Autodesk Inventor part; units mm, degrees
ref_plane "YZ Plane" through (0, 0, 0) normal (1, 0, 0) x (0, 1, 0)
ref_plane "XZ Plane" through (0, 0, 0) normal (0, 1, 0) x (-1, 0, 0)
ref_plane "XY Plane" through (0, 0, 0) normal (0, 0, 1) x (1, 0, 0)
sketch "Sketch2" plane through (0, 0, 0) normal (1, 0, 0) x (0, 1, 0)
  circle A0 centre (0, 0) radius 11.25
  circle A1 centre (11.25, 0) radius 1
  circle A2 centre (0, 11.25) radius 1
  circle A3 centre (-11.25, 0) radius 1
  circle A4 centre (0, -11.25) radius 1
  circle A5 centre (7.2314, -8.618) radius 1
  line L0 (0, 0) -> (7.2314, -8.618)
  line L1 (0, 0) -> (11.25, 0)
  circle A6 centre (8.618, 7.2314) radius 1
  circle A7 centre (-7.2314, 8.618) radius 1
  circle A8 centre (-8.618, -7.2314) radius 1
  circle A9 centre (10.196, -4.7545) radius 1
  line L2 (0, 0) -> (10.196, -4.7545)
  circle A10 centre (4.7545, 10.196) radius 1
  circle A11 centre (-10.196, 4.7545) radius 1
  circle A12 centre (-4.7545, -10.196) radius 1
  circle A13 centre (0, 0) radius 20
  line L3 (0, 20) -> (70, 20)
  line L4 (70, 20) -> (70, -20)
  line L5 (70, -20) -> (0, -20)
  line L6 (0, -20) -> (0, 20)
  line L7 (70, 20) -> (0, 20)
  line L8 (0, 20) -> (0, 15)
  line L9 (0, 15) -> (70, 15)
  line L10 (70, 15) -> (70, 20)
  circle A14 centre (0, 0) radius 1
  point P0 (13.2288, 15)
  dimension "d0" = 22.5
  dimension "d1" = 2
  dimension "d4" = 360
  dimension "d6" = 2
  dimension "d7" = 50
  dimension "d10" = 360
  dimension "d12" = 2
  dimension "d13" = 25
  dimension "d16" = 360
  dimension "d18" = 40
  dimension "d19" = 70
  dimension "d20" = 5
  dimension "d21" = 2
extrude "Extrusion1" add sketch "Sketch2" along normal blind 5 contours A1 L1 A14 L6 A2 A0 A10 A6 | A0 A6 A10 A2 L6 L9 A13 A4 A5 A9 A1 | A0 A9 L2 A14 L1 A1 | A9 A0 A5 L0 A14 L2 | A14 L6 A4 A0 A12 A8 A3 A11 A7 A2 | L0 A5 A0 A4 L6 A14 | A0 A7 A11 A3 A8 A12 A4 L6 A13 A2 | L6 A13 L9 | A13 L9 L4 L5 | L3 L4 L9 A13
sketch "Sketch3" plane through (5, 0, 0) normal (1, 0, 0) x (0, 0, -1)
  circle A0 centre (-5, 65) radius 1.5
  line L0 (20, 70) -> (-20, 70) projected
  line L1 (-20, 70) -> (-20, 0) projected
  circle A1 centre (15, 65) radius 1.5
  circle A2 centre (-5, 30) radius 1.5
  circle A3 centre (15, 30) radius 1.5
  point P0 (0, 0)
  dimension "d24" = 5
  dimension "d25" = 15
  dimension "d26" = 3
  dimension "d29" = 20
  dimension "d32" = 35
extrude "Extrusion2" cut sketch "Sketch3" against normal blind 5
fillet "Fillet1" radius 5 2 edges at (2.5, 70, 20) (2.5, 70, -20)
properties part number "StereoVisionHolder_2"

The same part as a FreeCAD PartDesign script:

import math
import FreeCAD as App
import Part
import Sketcher


def edges_at(feature, points):
    """Names of the edges that pass closest to the given points."""
    edges = feature.Shape.Edges
    near = lambda p: min(range(len(edges)), key=lambda i: edges[i].distToShape(Part.Vertex(*p))[0])
    return sorted({f"Edge{near(p) + 1}" for p in points})

doc = App.newDocument("Part")
body = doc.addObject("PartDesign::Body", "Body")

# Sketch on YZ plane
sketch1 = body.newObject("Sketcher::SketchObject", "Sketch")
sketch1.AttachmentSupport = (doc.getObject("YZ_Plane"), [""])
sketch1.MapMode = "FlatFace"
sketch1.addGeometry(Part.ArcOfCircle(Part.Circle(App.Vector(0, 0, 0), App.Vector(0, 0, 1), 20), math.radians(90), math.radians(270)), False)
sketch1.addGeometry(Part.LineSegment(App.Vector(0, -20, 0), App.Vector(70, -20, 0)), False)
sketch1.addGeometry(Part.LineSegment(App.Vector(70, -20, 0), App.Vector(70, 20, 0)), False)
sketch1.addGeometry(Part.LineSegment(App.Vector(70, 20, 0), App.Vector(0, 20, 0)), False)
sketch1.addGeometry(Part.Circle(App.Vector(11.25, 0, 0), App.Vector(0, 0, 1), 1), False)
sketch1.addGeometry(Part.Circle(App.Vector(0, 0, 0), App.Vector(0, 0, 1), 1), False)
sketch1.addGeometry(Part.Circle(App.Vector(0, 11.25, 0), App.Vector(0, 0, 1), 1), False)
sketch1.addGeometry(Part.Circle(App.Vector(4.7545, 10.196, 0), App.Vector(0, 0, 1), 1), False)
sketch1.addGeometry(Part.Circle(App.Vector(8.618, 7.2314, 0), App.Vector(0, 0, 1), 1), False)
sketch1.addGeometry(Part.Circle(App.Vector(10.196, -4.7545, 0), App.Vector(0, 0, 1), 1), False)
sketch1.addGeometry(Part.Circle(App.Vector(0, -11.25, 0), App.Vector(0, 0, 1), 1), False)
sketch1.addGeometry(Part.Circle(App.Vector(-4.7545, -10.196, 0), App.Vector(0, 0, 1), 1), False)
sketch1.addGeometry(Part.Circle(App.Vector(-8.618, -7.2314, 0), App.Vector(0, 0, 1), 1), False)
sketch1.addGeometry(Part.Circle(App.Vector(-11.25, 0, 0), App.Vector(0, 0, 1), 1), False)
sketch1.addGeometry(Part.Circle(App.Vector(-10.196, 4.7545, 0), App.Vector(0, 0, 1), 1), False)
sketch1.addGeometry(Part.Circle(App.Vector(-7.2314, 8.618, 0), App.Vector(0, 0, 1), 1), False)
sketch1.addGeometry(Part.Circle(App.Vector(7.2314, -8.618, 0), App.Vector(0, 0, 1), 1), False)
sketch1.addConstraint(Sketcher.Constraint("Tangent", 0, 2, 1, 1))
sketch1.addConstraint(Sketcher.Constraint("Coincident", 1, 2, 2, 1))
sketch1.addConstraint(Sketcher.Constraint("Coincident", 2, 2, 3, 1))
sketch1.addConstraint(Sketcher.Constraint("Tangent", 3, 2, 0, 1))
sketch1.addConstraint(Sketcher.Constraint("Horizontal", 1))
sketch1.addConstraint(Sketcher.Constraint("Vertical", 2))
sketch1.addConstraint(Sketcher.Constraint("Horizontal", 3))
sketch1.addConstraint(Sketcher.Constraint("Coincident", 0, 3, -1, 1))
sketch1.addConstraint(Sketcher.Constraint("Coincident", 5, 3, -1, 1))
sketch1.addConstraint(Sketcher.Constraint("Equal", 4, 5))
sketch1.addConstraint(Sketcher.Constraint("Equal", 5, 6))
sketch1.addConstraint(Sketcher.Constraint("Equal", 6, 7))
sketch1.addConstraint(Sketcher.Constraint("Equal", 7, 8))
sketch1.addConstraint(Sketcher.Constraint("Equal", 8, 9))
sketch1.addConstraint(Sketcher.Constraint("Equal", 9, 10))
sketch1.addConstraint(Sketcher.Constraint("Equal", 10, 11))
sketch1.addConstraint(Sketcher.Constraint("Equal", 11, 12))
sketch1.addConstraint(Sketcher.Constraint("Equal", 12, 13))
sketch1.addConstraint(Sketcher.Constraint("Equal", 13, 14))
sketch1.addConstraint(Sketcher.Constraint("Equal", 14, 15))
sketch1.addConstraint(Sketcher.Constraint("Equal", 15, 16))
sketch1.addConstraint(Sketcher.Constraint("Symmetric", 6, 3, 10, 3, -1, 1))
sketch1.addConstraint(Sketcher.Constraint("Symmetric", 7, 3, 11, 3, -1, 1))
sketch1.addConstraint(Sketcher.Constraint("Symmetric", 8, 3, 12, 3, -1, 1))
sketch1.addConstraint(Sketcher.Constraint("Symmetric", 4, 3, 13, 3, -1, 1))
sketch1.addConstraint(Sketcher.Constraint("Symmetric", 9, 3, 14, 3, -1, 1))
sketch1.addConstraint(Sketcher.Constraint("Symmetric", 15, 3, 16, 3, -1, 1))
sketch1.addConstraint(Sketcher.Constraint("PointOnObject", 4, 3, -1))
sketch1.addConstraint(Sketcher.Constraint("PointOnObject", 6, 3, -2))
sketch1.addConstraint(Sketcher.Constraint("Diameter", 4, 2.0))
sketch1.addConstraint(Sketcher.Constraint("Radius", 0, 20.0))
sketch1.addConstraint(Sketcher.Constraint("DistanceX", 1, 1, 1, 2, 70.0))
sketch1.addConstraint(Sketcher.Constraint("DistanceX", -1, 1, 4, 3, 11.25))
sketch1.addConstraint(Sketcher.Constraint("DistanceY", -1, 1, 6, 3, 11.25))
sketch1.addConstraint(Sketcher.Constraint("DistanceY", -1, 1, 7, 3, 10.196))
sketch1.addConstraint(Sketcher.Constraint("DistanceX", -1, 1, 8, 3, 8.618))
sketch1.addConstraint(Sketcher.Constraint("DistanceX", -1, 1, 9, 3, 10.196))
sketch1.addConstraint(Sketcher.Constraint("DistanceY", -1, 1, 15, 3, 8.618))
sketch1.addConstraint(Sketcher.Constraint("DistanceY", 9, 3, 8, 3, 11.986))
sketch1.addConstraint(Sketcher.Constraint("DistanceY", 12, 3, 9, 3, 2.477))
sketch1.addConstraint(Sketcher.Constraint("DistanceX", -1, 1, 7, 3, 4.7545))
sketch1.addConstraint(Sketcher.Constraint("DistanceX", 15, 3, -1, 1, 7.2314))
pad1 = body.newObject("PartDesign::Pad", "Pad")
pad1.Profile = sketch1
pad1.Length = 5

# Sketch on YZ plane
sketch2 = body.newObject("Sketcher::SketchObject", "Sketch001")
sketch2.AttachmentSupport = (doc.getObject("YZ_Plane"), [""])
sketch2.MapMode = "FlatFace"
sketch2.AttachmentOffset = App.Placement(App.Vector(0, 0, 5), App.Rotation())
sketch2.addGeometry(Part.Circle(App.Vector(65, 5, 0), App.Vector(0, 0, 1), 1.5), False)
sketch2.addGeometry(Part.Circle(App.Vector(65, -15, 0), App.Vector(0, 0, 1), 1.5), False)
sketch2.addGeometry(Part.Circle(App.Vector(30, 5, 0), App.Vector(0, 0, 1), 1.5), False)
sketch2.addGeometry(Part.Circle(App.Vector(30, -15, 0), App.Vector(0, 0, 1), 1.5), False)
sketch2.addConstraint(Sketcher.Constraint("Equal", 0, 1))
sketch2.addConstraint(Sketcher.Constraint("Equal", 1, 2))
sketch2.addConstraint(Sketcher.Constraint("Equal", 2, 3))
sketch2.addConstraint(Sketcher.Constraint("Horizontal", 0, 3, 2, 3))
sketch2.addConstraint(Sketcher.Constraint("Horizontal", 1, 3, 3, 3))
sketch2.addConstraint(Sketcher.Constraint("Vertical", 0, 3, 1, 3))
sketch2.addConstraint(Sketcher.Constraint("Vertical", 2, 3, 3, 3))
sketch2.addConstraint(Sketcher.Constraint("Diameter", 0, 3.0))
sketch2.addConstraint(Sketcher.Constraint("DistanceY", -1, 1, 0, 3, 5.0))
sketch2.addConstraint(Sketcher.Constraint("DistanceY", 1, 3, -1, 1, 15.0))
sketch2.addConstraint(Sketcher.Constraint("DistanceX", 2, 3, 0, 3, 35.0))
sketch2.addConstraint(Sketcher.Constraint("DistanceX", -1, 1, 0, 3, 65.0))
pocket1 = body.newObject("PartDesign::Pocket", "Pocket")
pocket1.Profile = sketch2
pocket1.Length = 5
doc.recompute()

fillet = body.newObject("PartDesign::Fillet", "Fillet")
fillet.Base = (pocket1, edges_at(pocket1, [(2.5, 70, 20), (2.5, 70, -20)]))
fillet.Radius = 5

doc.recompute()
